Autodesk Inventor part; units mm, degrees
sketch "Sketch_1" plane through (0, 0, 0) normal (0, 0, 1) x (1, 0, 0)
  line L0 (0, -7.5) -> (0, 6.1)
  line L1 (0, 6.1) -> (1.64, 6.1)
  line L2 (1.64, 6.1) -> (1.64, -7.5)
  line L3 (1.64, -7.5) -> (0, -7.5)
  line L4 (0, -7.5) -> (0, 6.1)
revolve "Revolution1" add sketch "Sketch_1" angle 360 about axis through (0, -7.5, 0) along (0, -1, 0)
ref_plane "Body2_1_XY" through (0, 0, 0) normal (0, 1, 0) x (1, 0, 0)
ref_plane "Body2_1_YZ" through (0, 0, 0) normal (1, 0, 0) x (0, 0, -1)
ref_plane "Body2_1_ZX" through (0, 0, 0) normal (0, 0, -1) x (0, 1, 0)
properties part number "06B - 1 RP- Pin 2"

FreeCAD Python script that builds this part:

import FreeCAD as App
import Part
import Sketcher
from FreeCAD import Vector


def add_polygon(sketch, points):
    """Adds a closed chain of lines whose ends are joined by coincident constraints."""
    first, n = sketch.GeometryCount, len(points)
    for a, b in zip(points, points[1:] + points[:1]):
        sketch.addGeometry(Part.LineSegment(App.Vector(*a, 0), App.Vector(*b, 0)), False)
    for i in range(n):
        sketch.addConstraint(Sketcher.Constraint("Coincident", first + i, 2, first + (i + 1) % n, 1))

doc = App.newDocument("Part")
params = doc.addObject("Spreadsheet::Sheet", "Params")
for row, (alias, value) in enumerate([
    ("sketch1_height", "13.6 mm"),
    ("sketch1_width", "1.64 mm"),
    ("revolution_angle", "360 deg"),
], start=1):
    params.set(f"A{row}", alias)
    params.set(f"B{row}", "=" + value)
    params.setAlias(f"B{row}", alias)

body = doc.addObject("PartDesign::Body", "Body")

sketch1 = body.newObject("Sketcher::SketchObject", "Sketch")
sketch1.AttachmentSupport = (doc.getObject("XY_Plane"), [""])
sketch1.MapMode = "FlatFace"
add_polygon(sketch1, [(0, 6.1), (0, -7.5), (1.6, -7.5), (1.6, 6.1)])
sketch1.addConstraint([
    Sketcher.Constraint("Vertical", 0),
    Sketcher.Constraint("Horizontal", 1),
    Sketcher.Constraint("Vertical", 2),
    Sketcher.Constraint("Horizontal", 3),
    Sketcher.Constraint("PointOnObject", 0, 2, -2),
    Sketcher.Constraint("DistanceY", 0, 2, 0, 1, 13.6),
    Sketcher.Constraint("DistanceX", 1, 1, 1, 2, 1.64),
    Sketcher.Constraint("DistanceY", 0, 2, -1, 1, 7.5),
])
sketch1.setExpression("Constraints[9]", "Params.sketch1_height")
sketch1.setExpression("Constraints[10]", "Params.sketch1_width")
revolution = body.newObject("PartDesign::Revolution", "Revolution")
revolution.Profile = sketch1
revolution.ReferenceAxis = (sketch1, ["V_Axis"])
revolution.setExpression("Angle", "Params.revolution_angle")

doc.recompute()
